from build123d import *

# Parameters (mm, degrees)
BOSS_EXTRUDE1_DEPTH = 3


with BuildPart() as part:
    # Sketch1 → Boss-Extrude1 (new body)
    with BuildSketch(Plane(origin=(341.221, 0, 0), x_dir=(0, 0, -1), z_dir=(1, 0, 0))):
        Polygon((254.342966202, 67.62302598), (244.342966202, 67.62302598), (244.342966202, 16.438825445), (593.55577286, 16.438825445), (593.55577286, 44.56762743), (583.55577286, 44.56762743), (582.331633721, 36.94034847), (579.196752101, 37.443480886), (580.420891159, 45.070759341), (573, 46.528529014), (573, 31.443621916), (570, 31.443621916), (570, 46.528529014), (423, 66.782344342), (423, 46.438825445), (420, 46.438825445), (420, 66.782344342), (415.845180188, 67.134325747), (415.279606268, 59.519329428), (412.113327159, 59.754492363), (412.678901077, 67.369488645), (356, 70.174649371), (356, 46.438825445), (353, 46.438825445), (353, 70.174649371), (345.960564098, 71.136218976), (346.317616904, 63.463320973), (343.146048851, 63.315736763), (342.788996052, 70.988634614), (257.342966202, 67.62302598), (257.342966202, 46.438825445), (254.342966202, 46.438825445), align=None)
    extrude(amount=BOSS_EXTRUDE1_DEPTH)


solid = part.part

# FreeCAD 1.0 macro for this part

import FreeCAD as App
import Part
import Sketcher
from FreeCAD import Vector

doc = App.newDocument("Part")
body = doc.addObject("PartDesign::Body", "Body")

# Sketch on YZ plane
sketch1 = body.newObject("Sketcher::SketchObject", "Sketch")
sketch1.AttachmentSupport = (doc.getObject("YZ_Plane"), [""])
sketch1.MapMode = "FlatFace"
sketch1.AttachmentOffset = App.Placement(Vector(0, 0, 341.221), App.Rotation())
sketch1.addGeometry([
    Part.LineSegment(Vector(67.6, -254.3, 0), Vector(67.6, -244.3, 0)),  # 0
    Part.LineSegment(Vector(67.6, -244.3, 0), Vector(16.4, -244.3, 0)),  # 1
    Part.LineSegment(Vector(16.4, -244.3, 0), Vector(16.4, -593.6, 0)),  # 2
    Part.LineSegment(Vector(16.4, -593.6, 0), Vector(44.6, -593.6, 0)),  # 3
    Part.LineSegment(Vector(44.6, -593.6, 0), Vector(44.6, -583.6, 0)),  # 4
    Part.LineSegment(Vector(44.6, -583.6, 0), Vector(36.9, -582.3, 0)),  # 5
    Part.LineSegment(Vector(36.9, -582.3, 0), Vector(37.4, -579.2, 0)),  # 6
    Part.LineSegment(Vector(37.4, -579.2, 0), Vector(45.1, -580.4, 0)),  # 7
    Part.LineSegment(Vector(45.1, -580.4, 0), Vector(46.5, -573, 0)),  # 8
    Part.LineSegment(Vector(46.5, -573, 0), Vector(31.4, -573, 0)),  # 9
    Part.LineSegment(Vector(31.4, -573, 0), Vector(31.4, -570, 0)),  # 10
    Part.LineSegment(Vector(31.4, -570, 0), Vector(46.5, -570, 0)),  # 11
    Part.LineSegment(Vector(46.5, -570, 0), Vector(66.8, -423, 0)),  # 12
    Part.LineSegment(Vector(66.8, -423, 0), Vector(46.4, -423, 0)),  # 13
    Part.LineSegment(Vector(46.4, -423, 0), Vector(46.4, -420, 0)),  # 14
    Part.LineSegment(Vector(46.4, -420, 0), Vector(66.8, -420, 0)),  # 15
    Part.LineSegment(Vector(66.8, -420, 0), Vector(67.1, -415.8, 0)),  # 16
    Part.LineSegment(Vector(67.1, -415.8, 0), Vector(59.5, -415.3, 0)),  # 17
    Part.LineSegment(Vector(59.5, -415.3, 0), Vector(59.8, -412.1, 0)),  # 18
    Part.LineSegment(Vector(59.8, -412.1, 0), Vector(67.4, -412.7, 0)),  # 19
    Part.LineSegment(Vector(67.4, -412.7, 0), Vector(70.2, -356, 0)),  # 20
    Part.LineSegment(Vector(70.2, -356, 0), Vector(46.4, -356, 0)),  # 21
    Part.LineSegment(Vector(46.4, -356, 0), Vector(46.4, -353, 0)),  # 22
    Part.LineSegment(Vector(46.4, -353, 0), Vector(70.2, -353, 0)),  # 23
    Part.LineSegment(Vector(70.2, -353, 0), Vector(71.1, -346, 0)),  # 24
    Part.LineSegment(Vector(71.1, -346, 0), Vector(63.5, -346.3, 0)),  # 25
    Part.LineSegment(Vector(63.5, -346.3, 0), Vector(63.3, -343.1, 0)),  # 26
    Part.LineSegment(Vector(63.3, -343.1, 0), Vector(71, -342.8, 0)),  # 27
    Part.LineSegment(Vector(71, -342.8, 0), Vector(67.6, -257.3, 0)),  # 28
    Part.LineSegment(Vector(67.6, -257.3, 0), Vector(46.4, -257.3, 0)),  # 29
    Part.LineSegment(Vector(46.4, -257.3, 0), Vector(46.4, -254.3, 0)),  # 30
    Part.LineSegment(Vector(46.4, -254.3, 0), Vector(67.6, -254.3, 0)),  # 31
], False)
sketch1.addConstraint([
    Sketcher.Constraint("Coincident", 0, 2, 1, 1),
    Sketcher.Constraint("Coincident", 1, 2, 2, 1),
    Sketcher.Constraint("Coincident", 2, 2, 3, 1),
    Sketcher.Constraint("Coincident", 3, 2, 4, 1),
    Sketcher.Constraint("Coincident", 4, 2, 5, 1),
    Sketcher.Constraint("Coincident", 5, 2, 6, 1),
    Sketcher.Constraint("Coincident", 6, 2, 7, 1),
    Sketcher.Constraint("Coincident", 7, 2, 8, 1),
    Sketcher.Constraint("Coincident", 8, 2, 9, 1),
    Sketcher.Constraint("Coincident", 9, 2, 10, 1),
    Sketcher.Constraint("Coincident", 10, 2, 11, 1),
    Sketcher.Constraint("Coincident", 11, 2, 12, 1),
    Sketcher.Constraint("Coincident", 12, 2, 13, 1),
    Sketcher.Constraint("Coincident", 13, 2, 14, 1),
    Sketcher.Constraint("Coincident", 14, 2, 15, 1),
    Sketcher.Constraint("Coincident", 15, 2, 16, 1),
    Sketcher.Constraint("Coincident", 16, 2, 17, 1),
    Sketcher.Constraint("Coincident", 17, 2, 18, 1),
    Sketcher.Constraint("Coincident", 18, 2, 19, 1),
    Sketcher.Constraint("Coincident", 19, 2, 20, 1),
    Sketcher.Constraint("Coincident", 20, 2, 21, 1),
    Sketcher.Constraint("Coincident", 21, 2, 22, 1),
    Sketcher.Constraint("Coincident", 22, 2, 23, 1),
    Sketcher.Constraint("Coincident", 23, 2, 24, 1),
    Sketcher.Constraint("Coincident", 24, 2, 25, 1),
    Sketcher.Constraint("Coincident", 25, 2, 26, 1),
    Sketcher.Constraint("Coincident", 26, 2, 27, 1),
    Sketcher.Constraint("Coincident", 27, 2, 28, 1),
    Sketcher.Constraint("Coincident", 28, 2, 29, 1),
    Sketcher.Constraint("Coincident", 29, 2, 30, 1),
    Sketcher.Constraint("Coincident", 30, 2, 31, 1),
    Sketcher.Constraint("Coincident", 31, 2, 0, 1),
    Sketcher.Constraint("Vertical", 0),
    Sketcher.Constraint("Horizontal", 1),
    Sketcher.Constraint("Vertical", 2),
    Sketcher.Constraint("Horizontal", 3),
    Sketcher.Constraint("Vertical", 4),
    Sketcher.Constraint("Horizontal", 9),
    Sketcher.Constraint("Vertical", 10),
    Sketcher.Constraint("Horizontal", 11),
    Sketcher.Constraint("Horizontal", 13),
    Sketcher.Constraint("Vertical", 14),
    Sketcher.Constraint("Horizontal", 15),
    Sketcher.Constraint("Horizontal", 21),
    Sketcher.Constraint("Vertical", 22),
    Sketcher.Constraint("Horizontal", 23),
    Sketcher.Constraint("Horizontal", 29),
    Sketcher.Constraint("Vertical", 30),
    Sketcher.Constraint("Horizontal", 31),
    Sketcher.Constraint("Perpendicular", 5, 6),
    Sketcher.Constraint("Perpendicular", 6, 7),
    Sketcher.Constraint("Perpendicular", 17, 18),
    Sketcher.Constraint("Perpendicular", 18, 19),
    Sketcher.Constraint("Perpendicular", 25, 26),
    Sketcher.Constraint("Perpendicular", 26, 27),
    Sketcher.Constraint("Vertical", 8, 2, 11, 2),
    Sketcher.Constraint("Vertical", 12, 2, 15, 2),
    Sketcher.Constraint("Vertical", 14, 2, 21, 2),
    Sketcher.Constraint("Vertical", 20, 2, 23, 2),
    Sketcher.Constraint("Vertical", 0, 2, 28, 2),
    Sketcher.Constraint("Vertical", 22, 2, 29, 2),
    Sketcher.Constraint("Equal", 0, 4),
    Sketcher.Constraint("Equal", 10, 14),
    Sketcher.Constraint("Equal", 14, 22),
    Sketcher.Constraint("Equal", 22, 30),
    Sketcher.Constraint("Equal", 5, 7),
    Sketcher.Constraint("Equal", 6, 18),
    Sketcher.Constraint("Equal", 17, 19),
    Sketcher.Constraint("Equal", 18, 26),
    Sketcher.Constraint("Equal", 25, 27),
    Sketcher.Constraint("DistanceY", 0, 1, 0, 2, 10.0),
    Sketcher.Constraint("DistanceY", 10, 1, 10, 2, 3.0),
    Sketcher.Constraint("DistanceY", 8, 2, -1, 1, 573.0),
    Sketcher.Constraint("DistanceY", 12, 2, -1, 1, 423.0),
    Sketcher.Constraint("DistanceY", 20, 2, -1, 1, 356.0),
    Sketcher.Constraint("DistanceX", 1, 2, 29, 2, 30.0),
    Sketcher.Constraint("Distance", 6, 3.175),
    Sketcher.Constraint("DistanceX", 1, 2, 1, 1, 51.184201),
    Sketcher.Constraint("DistanceX", 3, 1, 3, 2, 28.128802),
    Sketcher.Constraint("Distance", 25, 7.681201),
    Sketcher.Constraint("DistanceX", 13, 2, 13, 1, 20.343519),
    Sketcher.Constraint("DistanceY", 19, 2, -1, 1, 412.678901),
    Sketcher.Constraint("DistanceX", 4, 2, 8, 2, 1.960902),
    Sketcher.Constraint("DistanceX", 14, 2, 16, 2, 20.6955),
    Sketcher.Constraint("DistanceX", 25, 2, 24, 2, 7.672898),
    Sketcher.Constraint("Distance", 5, 7.724888),
    Sketcher.Constraint("Distance", 8, 7.562719),
    Sketcher.Constraint("Distance", 17, 7.63597),
    Sketcher.Constraint("DistanceX", 9, 2, 9, 1, 15.084907),
    Sketcher.Constraint("DistanceX", 21, 2, 21, 1, 23.735824),
    Sketcher.Constraint("DistanceY", 2, 2, 2, 1, 349.212807),
    Sketcher.Constraint("DistanceX", -1, 1, 5, 2, 36.940348),
    Sketcher.Constraint("DistanceX", -1, 1, 6, 2, 37.443481),
    Sketcher.Constraint("DistanceY", 16, 2, -1, 1, 415.84518),
    Sketcher.Constraint("DistanceX", -1, 1, 24, 2, 71.136219),
    Sketcher.Constraint("DistanceY", 26, 2, -1, 1, 343.146049),
])
pad1 = body.newObject("PartDesign::Pad", "Pad")
pad1.Profile = sketch1
pad1.Length = 3

doc.recompute()
